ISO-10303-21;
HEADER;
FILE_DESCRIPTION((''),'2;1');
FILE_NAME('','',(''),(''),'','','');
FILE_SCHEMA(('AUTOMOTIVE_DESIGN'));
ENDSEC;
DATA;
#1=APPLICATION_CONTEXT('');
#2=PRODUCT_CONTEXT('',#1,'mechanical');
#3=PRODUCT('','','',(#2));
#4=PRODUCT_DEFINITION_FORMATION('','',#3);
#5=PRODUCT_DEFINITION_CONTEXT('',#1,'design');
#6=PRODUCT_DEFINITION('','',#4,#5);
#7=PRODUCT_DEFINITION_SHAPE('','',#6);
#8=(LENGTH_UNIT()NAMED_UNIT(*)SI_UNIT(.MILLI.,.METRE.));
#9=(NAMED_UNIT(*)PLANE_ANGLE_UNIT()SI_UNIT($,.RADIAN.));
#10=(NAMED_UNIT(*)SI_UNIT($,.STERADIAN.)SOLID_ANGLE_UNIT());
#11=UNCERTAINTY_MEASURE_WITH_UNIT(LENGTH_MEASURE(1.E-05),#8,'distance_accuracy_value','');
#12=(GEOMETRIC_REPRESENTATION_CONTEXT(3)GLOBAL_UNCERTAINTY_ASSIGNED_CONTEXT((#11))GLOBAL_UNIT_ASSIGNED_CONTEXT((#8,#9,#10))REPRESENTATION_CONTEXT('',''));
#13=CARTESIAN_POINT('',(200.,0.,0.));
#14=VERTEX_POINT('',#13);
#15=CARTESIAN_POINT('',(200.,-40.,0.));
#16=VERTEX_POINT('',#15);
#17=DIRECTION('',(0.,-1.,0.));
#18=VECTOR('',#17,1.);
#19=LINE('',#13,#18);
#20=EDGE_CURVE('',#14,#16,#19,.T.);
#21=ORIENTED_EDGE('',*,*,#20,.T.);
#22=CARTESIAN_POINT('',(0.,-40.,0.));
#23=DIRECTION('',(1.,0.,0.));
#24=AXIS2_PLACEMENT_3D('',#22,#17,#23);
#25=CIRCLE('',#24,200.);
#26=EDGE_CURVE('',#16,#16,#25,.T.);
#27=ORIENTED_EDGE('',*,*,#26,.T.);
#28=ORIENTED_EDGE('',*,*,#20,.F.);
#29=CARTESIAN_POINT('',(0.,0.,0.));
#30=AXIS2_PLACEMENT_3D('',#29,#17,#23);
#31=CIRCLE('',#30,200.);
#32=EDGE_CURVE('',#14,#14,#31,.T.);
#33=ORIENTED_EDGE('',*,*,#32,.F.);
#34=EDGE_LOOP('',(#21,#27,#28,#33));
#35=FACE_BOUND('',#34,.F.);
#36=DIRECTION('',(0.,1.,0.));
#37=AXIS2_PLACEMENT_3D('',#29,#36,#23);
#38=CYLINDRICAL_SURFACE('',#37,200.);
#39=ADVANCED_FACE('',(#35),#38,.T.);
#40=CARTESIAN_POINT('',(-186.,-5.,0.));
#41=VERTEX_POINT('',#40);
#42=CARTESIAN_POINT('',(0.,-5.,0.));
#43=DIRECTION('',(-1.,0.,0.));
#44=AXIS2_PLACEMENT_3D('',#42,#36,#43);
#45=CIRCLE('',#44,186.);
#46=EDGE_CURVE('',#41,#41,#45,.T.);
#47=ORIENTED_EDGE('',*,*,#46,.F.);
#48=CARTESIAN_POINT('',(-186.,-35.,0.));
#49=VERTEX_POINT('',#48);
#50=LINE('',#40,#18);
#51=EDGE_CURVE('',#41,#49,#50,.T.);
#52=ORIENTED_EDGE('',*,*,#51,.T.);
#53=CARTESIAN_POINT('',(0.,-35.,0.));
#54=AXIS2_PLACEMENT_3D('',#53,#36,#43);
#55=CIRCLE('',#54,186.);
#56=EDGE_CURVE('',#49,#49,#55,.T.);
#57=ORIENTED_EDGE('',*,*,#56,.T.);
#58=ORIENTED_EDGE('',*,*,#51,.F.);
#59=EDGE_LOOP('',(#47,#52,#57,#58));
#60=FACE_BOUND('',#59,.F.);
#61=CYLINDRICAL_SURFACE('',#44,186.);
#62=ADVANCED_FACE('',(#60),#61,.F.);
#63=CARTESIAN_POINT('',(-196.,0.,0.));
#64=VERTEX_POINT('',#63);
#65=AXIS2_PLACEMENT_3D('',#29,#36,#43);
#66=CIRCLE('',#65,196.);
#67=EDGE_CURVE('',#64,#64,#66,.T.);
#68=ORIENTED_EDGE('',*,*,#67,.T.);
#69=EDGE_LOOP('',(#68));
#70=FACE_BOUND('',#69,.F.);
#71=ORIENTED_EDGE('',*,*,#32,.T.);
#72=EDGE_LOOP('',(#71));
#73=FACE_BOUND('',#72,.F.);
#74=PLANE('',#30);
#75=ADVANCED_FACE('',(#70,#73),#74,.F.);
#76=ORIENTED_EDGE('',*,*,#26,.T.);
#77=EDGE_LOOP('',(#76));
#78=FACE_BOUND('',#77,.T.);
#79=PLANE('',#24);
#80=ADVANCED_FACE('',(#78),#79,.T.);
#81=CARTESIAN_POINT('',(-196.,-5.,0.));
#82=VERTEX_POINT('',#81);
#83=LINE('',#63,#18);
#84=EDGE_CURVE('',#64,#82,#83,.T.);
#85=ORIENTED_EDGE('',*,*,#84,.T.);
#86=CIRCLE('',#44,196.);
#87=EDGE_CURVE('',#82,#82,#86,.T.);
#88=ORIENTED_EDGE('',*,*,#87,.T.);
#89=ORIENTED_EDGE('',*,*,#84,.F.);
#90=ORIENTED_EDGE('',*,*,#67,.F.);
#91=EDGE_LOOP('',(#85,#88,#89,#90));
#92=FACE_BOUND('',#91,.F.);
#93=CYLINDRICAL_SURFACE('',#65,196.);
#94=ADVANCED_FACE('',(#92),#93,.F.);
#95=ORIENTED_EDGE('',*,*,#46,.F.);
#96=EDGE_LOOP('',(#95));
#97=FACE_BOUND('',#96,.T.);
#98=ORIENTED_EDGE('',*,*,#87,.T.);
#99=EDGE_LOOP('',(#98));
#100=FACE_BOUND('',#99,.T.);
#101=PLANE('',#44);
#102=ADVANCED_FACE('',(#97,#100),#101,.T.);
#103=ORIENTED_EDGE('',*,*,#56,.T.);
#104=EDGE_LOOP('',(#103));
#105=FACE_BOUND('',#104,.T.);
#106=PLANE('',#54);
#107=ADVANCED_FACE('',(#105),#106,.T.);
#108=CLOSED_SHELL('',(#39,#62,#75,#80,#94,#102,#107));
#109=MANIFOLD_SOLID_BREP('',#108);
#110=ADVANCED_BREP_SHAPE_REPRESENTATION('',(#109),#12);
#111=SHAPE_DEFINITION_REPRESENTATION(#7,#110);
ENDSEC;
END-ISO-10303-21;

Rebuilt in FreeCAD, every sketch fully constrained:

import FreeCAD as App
import Part
import Sketcher
Q = App.Units.Quantity

doc = App.newDocument("Part")
params = doc.addObject("Spreadsheet::Sheet", "Params")
for row, (alias, value) in enumerate([
    ("sketch1_diameter", "400 mm"),
    ("pad1_length", "40 mm"),
    ("sketch2_diameter", "392 mm"),
    ("pocket1_length", "5 mm"),
    ("sketch3_diameter", "372 mm"),
    ("pocket2_length", "30 mm"),
], start=1):
    params.set(f"A{row}", alias)
    params.set(f"B{row}", "=" + value)
    params.setAlias(f"B{row}", alias)

body = doc.addObject("PartDesign::Body", "Body")

# Sketch on XZ plane
sketch1 = doc.addObject("Sketcher::SketchObject", "Sketch")
body.addObject(sketch1)
sketch1.AttachmentSupport = (doc.XZ_Plane, [""])
sketch1.MapMode = "FlatFace"
sketch1.addGeometry(Part.Circle(App.Vector(0, 0, 0), App.Vector(0, 0, 1), 200), False)
sketch1.addConstraint([
    Sketcher.Constraint("Coincident", 0, 3, -1, 1),
    Sketcher.Constraint("Diameter", 0, Q("400 mm")),
])
sketch1.setExpression("Constraints[1]", "Params.sketch1_diameter")
pad1 = doc.addObject("PartDesign::Pad", "Pad")
body.addObject(pad1)
pad1.Profile = sketch1
pad1.setExpression("Length", "Params.pad1_length")

# Sketch on XZ plane
sketch2 = doc.addObject("Sketcher::SketchObject", "Sketch001")
body.addObject(sketch2)
sketch2.AttachmentSupport = (doc.XZ_Plane, [""])
sketch2.MapMode = "FlatFace"
sketch2.addGeometry(Part.Circle(App.Vector(0, 0, 0), App.Vector(0, 0, 1), 196), False)
sketch2.addConstraint([
    Sketcher.Constraint("Coincident", 0, 3, -1, 1),
    Sketcher.Constraint("Diameter", 0, Q("392 mm")),
])
sketch2.setExpression("Constraints[1]", "Params.sketch2_diameter")
pocket1 = doc.addObject("PartDesign::Pocket", "Pocket")
body.addObject(pocket1)
pocket1.Profile = sketch2
pocket1.setExpression("Length", "Params.pocket1_length")
pocket1.Reversed = True

# Sketch on XZ plane
sketch3 = doc.addObject("Sketcher::SketchObject", "Sketch002")
body.addObject(sketch3)
sketch3.AttachmentSupport = (doc.XZ_Plane, [""])
sketch3.MapMode = "FlatFace"
sketch3.AttachmentOffset = App.Placement(App.Vector(0, 0, 5), App.Rotation())
sketch3.addGeometry(Part.Circle(App.Vector(0, 0, 0), App.Vector(0, 0, 1), 186), False)
sketch3.addConstraint([
    Sketcher.Constraint("Coincident", 0, 3, -1, 1),
    Sketcher.Constraint("Diameter", 0, Q("372 mm")),
])
sketch3.setExpression("Constraints[1]", "Params.sketch3_diameter")
pocket2 = doc.addObject("PartDesign::Pocket", "Pocket001")
body.addObject(pocket2)
pocket2.Profile = sketch3
pocket2.setExpression("Length", "Params.pocket2_length")
pocket2.Reversed = True

doc.recompute()
